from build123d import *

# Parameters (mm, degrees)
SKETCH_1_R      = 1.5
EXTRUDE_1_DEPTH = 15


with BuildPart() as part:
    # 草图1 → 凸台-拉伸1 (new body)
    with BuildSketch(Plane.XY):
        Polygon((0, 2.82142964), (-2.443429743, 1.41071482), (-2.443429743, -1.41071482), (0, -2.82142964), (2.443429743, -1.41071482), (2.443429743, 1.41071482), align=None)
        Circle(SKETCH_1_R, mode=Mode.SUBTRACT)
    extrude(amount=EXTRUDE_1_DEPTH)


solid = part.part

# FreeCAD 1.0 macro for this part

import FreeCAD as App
import Part
import Sketcher

V = App.Vector
Q = App.Units.Quantity


def add_polygon(sketch, points):
    """Adds a closed chain of lines whose ends are joined by coincident constraints."""
    first, n = sketch.GeometryCount, len(points)
    for a, b in zip(points, points[1:] + points[:1]):
        sketch.addGeometry(Part.LineSegment(App.Vector(*a, 0), App.Vector(*b, 0)), False)
    for i in range(n):
        sketch.addConstraint(Sketcher.Constraint("Coincident", first + i, 2, first + (i + 1) % n, 1))

doc = App.newDocument("Part")
body = doc.addObject("PartDesign::Body", "Body")

# Sketch on XY plane
sketch1 = body.newObject("Sketcher::SketchObject", "Sketch")
sketch1.AttachmentSupport = (doc.getObject("XY_Plane"), [""])
sketch1.MapMode = "FlatFace"
add_polygon(sketch1, [(0, 2.82143), (-2.44343, 1.410715), (-2.44343, -1.410715), (0, -2.82143), (2.44343, -1.410715), (2.44343, 1.410715)])  # lines 0-5
sketch1.addGeometry(Part.Circle(V(0, 0, 0), V(0, 0, 1), 1.5), False)  # 6
sketch1.addConstraint(Sketcher.Constraint("Vertical", 1))
sketch1.addConstraint(Sketcher.Constraint("Vertical", 4))
sketch1.addConstraint(Sketcher.Constraint("Coincident", 6, 3, -1, 1))
sketch1.addConstraint(Sketcher.Constraint("Symmetric", 0, 2, 3, 2, -1, 1))
sketch1.addConstraint(Sketcher.Constraint("Symmetric", 2, 2, 5, 2, -1, 1))
sketch1.addConstraint(Sketcher.Constraint("PointOnObject", 2, 2, -2))
sketch1.addConstraint(Sketcher.Constraint("Parallel", 2, 5))
sketch1.addConstraint(Sketcher.Constraint("Horizontal", 1, 2, 3, 2))
sketch1.addConstraint(Sketcher.Constraint("Diameter", 6, 3.0))
sketch1.addConstraint(Sketcher.Constraint("Angle", 0, Q("-150 deg")))
sketch1.addConstraint(Sketcher.Constraint("DistanceY", 1, 2, 1, 1, 2.82143))
sketch1.addConstraint(Sketcher.Constraint("Distance", 0, 2.82143))
pad1 = body.newObject("PartDesign::Pad", "Pad")
pad1.Profile = sketch1
pad1.Length = 15

doc.recompute()
